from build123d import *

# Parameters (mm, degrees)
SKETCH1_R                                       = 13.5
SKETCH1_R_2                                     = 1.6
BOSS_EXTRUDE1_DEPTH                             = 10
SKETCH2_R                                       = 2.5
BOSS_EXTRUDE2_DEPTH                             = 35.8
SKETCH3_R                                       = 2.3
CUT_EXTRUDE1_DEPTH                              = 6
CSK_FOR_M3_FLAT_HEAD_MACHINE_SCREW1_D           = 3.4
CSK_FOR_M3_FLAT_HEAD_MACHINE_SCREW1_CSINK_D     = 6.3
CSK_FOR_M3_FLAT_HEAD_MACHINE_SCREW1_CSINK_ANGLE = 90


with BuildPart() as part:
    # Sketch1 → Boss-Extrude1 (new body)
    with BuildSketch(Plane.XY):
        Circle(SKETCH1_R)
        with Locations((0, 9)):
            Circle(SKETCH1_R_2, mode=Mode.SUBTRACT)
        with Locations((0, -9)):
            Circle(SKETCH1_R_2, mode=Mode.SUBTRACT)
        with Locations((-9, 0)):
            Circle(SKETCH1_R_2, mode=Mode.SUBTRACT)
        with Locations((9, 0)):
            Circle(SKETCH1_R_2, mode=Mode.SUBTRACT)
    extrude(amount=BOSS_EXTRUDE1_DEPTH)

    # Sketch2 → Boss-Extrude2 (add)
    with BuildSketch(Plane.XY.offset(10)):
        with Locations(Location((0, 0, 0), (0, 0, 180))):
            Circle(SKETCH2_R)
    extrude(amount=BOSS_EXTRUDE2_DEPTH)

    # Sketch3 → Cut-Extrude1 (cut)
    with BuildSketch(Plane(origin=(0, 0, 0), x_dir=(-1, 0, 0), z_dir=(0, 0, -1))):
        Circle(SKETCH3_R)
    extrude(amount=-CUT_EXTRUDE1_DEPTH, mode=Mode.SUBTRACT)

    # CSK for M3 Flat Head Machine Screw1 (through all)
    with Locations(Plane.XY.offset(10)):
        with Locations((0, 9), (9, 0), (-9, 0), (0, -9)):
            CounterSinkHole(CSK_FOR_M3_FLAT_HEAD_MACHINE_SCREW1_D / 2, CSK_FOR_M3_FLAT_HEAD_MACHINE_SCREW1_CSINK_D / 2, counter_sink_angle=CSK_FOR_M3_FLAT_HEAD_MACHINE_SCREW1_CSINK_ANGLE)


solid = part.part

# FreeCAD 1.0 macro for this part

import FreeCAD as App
import Part
import Sketcher

doc = App.newDocument("Part")
params = doc.addObject("Spreadsheet::Sheet", "Params")
for row, (alias, value) in enumerate([
    ("sketch1_diameter", "27 mm"),
    ("sketch1_diameter2", "3.2 mm"),
    ("pad1_length", "10 mm"),
    ("sketch2_diameter", "5 mm"),
    ("pad2_length", "35.8 mm"),
    ("sketch3_diameter", "4.6 mm"),
    ("pocket1_length", "6 mm"),
    ("sketch4_diameter", "3.4 mm"),
    ("hole_diameter", "3.4 mm"),
    ("hole_csink_diameter", "6.3 mm"),
], start=1):
    params.set(f"A{row}", alias)
    params.set(f"B{row}", "=" + value)
    params.setAlias(f"B{row}", alias)

body = doc.addObject("PartDesign::Body", "Body")

sketch1 = body.newObject("Sketcher::SketchObject", "Sketch")
sketch1.AttachmentSupport = (doc.getObject("XY_Plane"), [""])
sketch1.MapMode = "FlatFace"
sketch1.addGeometry([
    Part.Circle(App.Vector(0, 0, 0), App.Vector(0, 0, 1), 13.5),
    Part.Circle(App.Vector(0, -9, 0), App.Vector(0, 0, 1), 1.6),
    Part.Circle(App.Vector(-9, 0, 0), App.Vector(0, 0, 1), 1.6),
    Part.Circle(App.Vector(9, 0, 0), App.Vector(0, 0, 1), 1.6),
    Part.Circle(App.Vector(0, 9, 0), App.Vector(0, 0, 1), 1.6),
], False)
sketch1.addConstraint([
    Sketcher.Constraint("Coincident", 0, 3, -1, 1),
    Sketcher.Constraint("Equal", 1, 2),
    Sketcher.Constraint("Equal", 2, 3),
    Sketcher.Constraint("Equal", 3, 4),
    Sketcher.Constraint("Symmetric", 2, 3, 3, 3, -1, 1),
    Sketcher.Constraint("Symmetric", 1, 3, 4, 3, -1, 1),
    Sketcher.Constraint("PointOnObject", 1, 3, -2),
    Sketcher.Constraint("PointOnObject", 2, 3, -1),
    Sketcher.Constraint("Diameter", 0, 27.0),
    Sketcher.Constraint("Diameter", 1, 3.2),
    Sketcher.Constraint("DistanceY", 1, 3, -1, 1, 9.0),
    Sketcher.Constraint("DistanceX", 2, 3, -1, 1, 9.0),
])
sketch1.setExpression("Constraints[8]", "Params.sketch1_diameter")
sketch1.setExpression("Constraints[9]", "Params.sketch1_diameter2")
pad1 = body.newObject("PartDesign::Pad", "Pad")
pad1.Profile = sketch1
pad1.setExpression("Length", "Params.pad1_length")

sketch2 = body.newObject("Sketcher::SketchObject", "Sketch001")
sketch2.AttachmentSupport = (doc.getObject("XY_Plane"), [""])
sketch2.MapMode = "FlatFace"
sketch2.AttachmentOffset = App.Placement(App.Vector(0, 0, 10), App.Rotation())
sketch2.addGeometry(Part.Circle(App.Vector(0, 0, 0), App.Vector(0, 0, 1), 2.5), False)
sketch2.addConstraint([
    Sketcher.Constraint("Coincident", 0, 3, -1, 1),
    Sketcher.Constraint("Diameter", 0, 5.0),
])
sketch2.setExpression("Constraints[1]", "Params.sketch2_diameter")
pad2 = body.newObject("PartDesign::Pad", "Pad001")
pad2.Profile = sketch2
pad2.setExpression("Length", "Params.pad2_length")

sketch3 = body.newObject("Sketcher::SketchObject", "Sketch002")
sketch3.AttachmentSupport = (doc.getObject("XY_Plane"), [""])
sketch3.MapMode = "FlatFace"
sketch3.addGeometry(Part.Circle(App.Vector(0, 0, 0), App.Vector(0, 0, 1), 2.3), False)
sketch3.addConstraint([
    Sketcher.Constraint("Coincident", 0, 3, -1, 1),
    Sketcher.Constraint("Diameter", 0, 4.6),
])
sketch3.setExpression("Constraints[1]", "Params.sketch3_diameter")
pocket1 = body.newObject("PartDesign::Pocket", "Pocket")
pocket1.Profile = sketch3
pocket1.setExpression("Length", "Params.pocket1_length")
pocket1.Reversed = True

sketch4 = body.newObject("Sketcher::SketchObject", "Sketch003")
sketch4.AttachmentSupport = (doc.getObject("XY_Plane"), [""])
sketch4.MapMode = "FlatFace"
sketch4.AttachmentOffset = App.Placement(App.Vector(0, 0, 10), App.Rotation())
sketch4.addGeometry([
    Part.Circle(App.Vector(0, 9, 0), App.Vector(0, 0, 1), 1.7),
    Part.Circle(App.Vector(9, 0, 0), App.Vector(0, 0, 1), 1.7),
    Part.Circle(App.Vector(-9, 0, 0), App.Vector(0, 0, 1), 1.7),
    Part.Circle(App.Vector(0, -9, 0), App.Vector(0, 0, 1), 1.7),
], False)
sketch4.addConstraint([
    Sketcher.Constraint("Equal", 0, 1),
    Sketcher.Constraint("Equal", 1, 2),
    Sketcher.Constraint("Equal", 2, 3),
    Sketcher.Constraint("Symmetric", 1, 3, 2, 3, -1, 1),
    Sketcher.Constraint("Symmetric", 0, 3, 3, 3, -1, 1),
    Sketcher.Constraint("PointOnObject", 0, 3, -2),
    Sketcher.Constraint("PointOnObject", 1, 3, -1),
    Sketcher.Constraint("Diameter", 0, 3.4),
    Sketcher.Constraint("DistanceY", -1, 1, 0, 3, 9.0),
    Sketcher.Constraint("DistanceX", -1, 1, 1, 3, 9.0),
])
sketch4.setExpression("Constraints[7]", "Params.sketch4_diameter")
doc.recompute()
hole = body.newObject("PartDesign::Hole", "Hole")
hole.Profile = sketch4
hole.ThreadType = "None"
hole.setExpression("Diameter", "Params.hole_diameter")
hole.DepthType = "ThroughAll"
hole.HoleCutType = "Countersink"
hole.setExpression("HoleCutDiameter", "Params.hole_csink_diameter")
hole.HoleCutCountersinkAngle = 90

doc.recompute()
